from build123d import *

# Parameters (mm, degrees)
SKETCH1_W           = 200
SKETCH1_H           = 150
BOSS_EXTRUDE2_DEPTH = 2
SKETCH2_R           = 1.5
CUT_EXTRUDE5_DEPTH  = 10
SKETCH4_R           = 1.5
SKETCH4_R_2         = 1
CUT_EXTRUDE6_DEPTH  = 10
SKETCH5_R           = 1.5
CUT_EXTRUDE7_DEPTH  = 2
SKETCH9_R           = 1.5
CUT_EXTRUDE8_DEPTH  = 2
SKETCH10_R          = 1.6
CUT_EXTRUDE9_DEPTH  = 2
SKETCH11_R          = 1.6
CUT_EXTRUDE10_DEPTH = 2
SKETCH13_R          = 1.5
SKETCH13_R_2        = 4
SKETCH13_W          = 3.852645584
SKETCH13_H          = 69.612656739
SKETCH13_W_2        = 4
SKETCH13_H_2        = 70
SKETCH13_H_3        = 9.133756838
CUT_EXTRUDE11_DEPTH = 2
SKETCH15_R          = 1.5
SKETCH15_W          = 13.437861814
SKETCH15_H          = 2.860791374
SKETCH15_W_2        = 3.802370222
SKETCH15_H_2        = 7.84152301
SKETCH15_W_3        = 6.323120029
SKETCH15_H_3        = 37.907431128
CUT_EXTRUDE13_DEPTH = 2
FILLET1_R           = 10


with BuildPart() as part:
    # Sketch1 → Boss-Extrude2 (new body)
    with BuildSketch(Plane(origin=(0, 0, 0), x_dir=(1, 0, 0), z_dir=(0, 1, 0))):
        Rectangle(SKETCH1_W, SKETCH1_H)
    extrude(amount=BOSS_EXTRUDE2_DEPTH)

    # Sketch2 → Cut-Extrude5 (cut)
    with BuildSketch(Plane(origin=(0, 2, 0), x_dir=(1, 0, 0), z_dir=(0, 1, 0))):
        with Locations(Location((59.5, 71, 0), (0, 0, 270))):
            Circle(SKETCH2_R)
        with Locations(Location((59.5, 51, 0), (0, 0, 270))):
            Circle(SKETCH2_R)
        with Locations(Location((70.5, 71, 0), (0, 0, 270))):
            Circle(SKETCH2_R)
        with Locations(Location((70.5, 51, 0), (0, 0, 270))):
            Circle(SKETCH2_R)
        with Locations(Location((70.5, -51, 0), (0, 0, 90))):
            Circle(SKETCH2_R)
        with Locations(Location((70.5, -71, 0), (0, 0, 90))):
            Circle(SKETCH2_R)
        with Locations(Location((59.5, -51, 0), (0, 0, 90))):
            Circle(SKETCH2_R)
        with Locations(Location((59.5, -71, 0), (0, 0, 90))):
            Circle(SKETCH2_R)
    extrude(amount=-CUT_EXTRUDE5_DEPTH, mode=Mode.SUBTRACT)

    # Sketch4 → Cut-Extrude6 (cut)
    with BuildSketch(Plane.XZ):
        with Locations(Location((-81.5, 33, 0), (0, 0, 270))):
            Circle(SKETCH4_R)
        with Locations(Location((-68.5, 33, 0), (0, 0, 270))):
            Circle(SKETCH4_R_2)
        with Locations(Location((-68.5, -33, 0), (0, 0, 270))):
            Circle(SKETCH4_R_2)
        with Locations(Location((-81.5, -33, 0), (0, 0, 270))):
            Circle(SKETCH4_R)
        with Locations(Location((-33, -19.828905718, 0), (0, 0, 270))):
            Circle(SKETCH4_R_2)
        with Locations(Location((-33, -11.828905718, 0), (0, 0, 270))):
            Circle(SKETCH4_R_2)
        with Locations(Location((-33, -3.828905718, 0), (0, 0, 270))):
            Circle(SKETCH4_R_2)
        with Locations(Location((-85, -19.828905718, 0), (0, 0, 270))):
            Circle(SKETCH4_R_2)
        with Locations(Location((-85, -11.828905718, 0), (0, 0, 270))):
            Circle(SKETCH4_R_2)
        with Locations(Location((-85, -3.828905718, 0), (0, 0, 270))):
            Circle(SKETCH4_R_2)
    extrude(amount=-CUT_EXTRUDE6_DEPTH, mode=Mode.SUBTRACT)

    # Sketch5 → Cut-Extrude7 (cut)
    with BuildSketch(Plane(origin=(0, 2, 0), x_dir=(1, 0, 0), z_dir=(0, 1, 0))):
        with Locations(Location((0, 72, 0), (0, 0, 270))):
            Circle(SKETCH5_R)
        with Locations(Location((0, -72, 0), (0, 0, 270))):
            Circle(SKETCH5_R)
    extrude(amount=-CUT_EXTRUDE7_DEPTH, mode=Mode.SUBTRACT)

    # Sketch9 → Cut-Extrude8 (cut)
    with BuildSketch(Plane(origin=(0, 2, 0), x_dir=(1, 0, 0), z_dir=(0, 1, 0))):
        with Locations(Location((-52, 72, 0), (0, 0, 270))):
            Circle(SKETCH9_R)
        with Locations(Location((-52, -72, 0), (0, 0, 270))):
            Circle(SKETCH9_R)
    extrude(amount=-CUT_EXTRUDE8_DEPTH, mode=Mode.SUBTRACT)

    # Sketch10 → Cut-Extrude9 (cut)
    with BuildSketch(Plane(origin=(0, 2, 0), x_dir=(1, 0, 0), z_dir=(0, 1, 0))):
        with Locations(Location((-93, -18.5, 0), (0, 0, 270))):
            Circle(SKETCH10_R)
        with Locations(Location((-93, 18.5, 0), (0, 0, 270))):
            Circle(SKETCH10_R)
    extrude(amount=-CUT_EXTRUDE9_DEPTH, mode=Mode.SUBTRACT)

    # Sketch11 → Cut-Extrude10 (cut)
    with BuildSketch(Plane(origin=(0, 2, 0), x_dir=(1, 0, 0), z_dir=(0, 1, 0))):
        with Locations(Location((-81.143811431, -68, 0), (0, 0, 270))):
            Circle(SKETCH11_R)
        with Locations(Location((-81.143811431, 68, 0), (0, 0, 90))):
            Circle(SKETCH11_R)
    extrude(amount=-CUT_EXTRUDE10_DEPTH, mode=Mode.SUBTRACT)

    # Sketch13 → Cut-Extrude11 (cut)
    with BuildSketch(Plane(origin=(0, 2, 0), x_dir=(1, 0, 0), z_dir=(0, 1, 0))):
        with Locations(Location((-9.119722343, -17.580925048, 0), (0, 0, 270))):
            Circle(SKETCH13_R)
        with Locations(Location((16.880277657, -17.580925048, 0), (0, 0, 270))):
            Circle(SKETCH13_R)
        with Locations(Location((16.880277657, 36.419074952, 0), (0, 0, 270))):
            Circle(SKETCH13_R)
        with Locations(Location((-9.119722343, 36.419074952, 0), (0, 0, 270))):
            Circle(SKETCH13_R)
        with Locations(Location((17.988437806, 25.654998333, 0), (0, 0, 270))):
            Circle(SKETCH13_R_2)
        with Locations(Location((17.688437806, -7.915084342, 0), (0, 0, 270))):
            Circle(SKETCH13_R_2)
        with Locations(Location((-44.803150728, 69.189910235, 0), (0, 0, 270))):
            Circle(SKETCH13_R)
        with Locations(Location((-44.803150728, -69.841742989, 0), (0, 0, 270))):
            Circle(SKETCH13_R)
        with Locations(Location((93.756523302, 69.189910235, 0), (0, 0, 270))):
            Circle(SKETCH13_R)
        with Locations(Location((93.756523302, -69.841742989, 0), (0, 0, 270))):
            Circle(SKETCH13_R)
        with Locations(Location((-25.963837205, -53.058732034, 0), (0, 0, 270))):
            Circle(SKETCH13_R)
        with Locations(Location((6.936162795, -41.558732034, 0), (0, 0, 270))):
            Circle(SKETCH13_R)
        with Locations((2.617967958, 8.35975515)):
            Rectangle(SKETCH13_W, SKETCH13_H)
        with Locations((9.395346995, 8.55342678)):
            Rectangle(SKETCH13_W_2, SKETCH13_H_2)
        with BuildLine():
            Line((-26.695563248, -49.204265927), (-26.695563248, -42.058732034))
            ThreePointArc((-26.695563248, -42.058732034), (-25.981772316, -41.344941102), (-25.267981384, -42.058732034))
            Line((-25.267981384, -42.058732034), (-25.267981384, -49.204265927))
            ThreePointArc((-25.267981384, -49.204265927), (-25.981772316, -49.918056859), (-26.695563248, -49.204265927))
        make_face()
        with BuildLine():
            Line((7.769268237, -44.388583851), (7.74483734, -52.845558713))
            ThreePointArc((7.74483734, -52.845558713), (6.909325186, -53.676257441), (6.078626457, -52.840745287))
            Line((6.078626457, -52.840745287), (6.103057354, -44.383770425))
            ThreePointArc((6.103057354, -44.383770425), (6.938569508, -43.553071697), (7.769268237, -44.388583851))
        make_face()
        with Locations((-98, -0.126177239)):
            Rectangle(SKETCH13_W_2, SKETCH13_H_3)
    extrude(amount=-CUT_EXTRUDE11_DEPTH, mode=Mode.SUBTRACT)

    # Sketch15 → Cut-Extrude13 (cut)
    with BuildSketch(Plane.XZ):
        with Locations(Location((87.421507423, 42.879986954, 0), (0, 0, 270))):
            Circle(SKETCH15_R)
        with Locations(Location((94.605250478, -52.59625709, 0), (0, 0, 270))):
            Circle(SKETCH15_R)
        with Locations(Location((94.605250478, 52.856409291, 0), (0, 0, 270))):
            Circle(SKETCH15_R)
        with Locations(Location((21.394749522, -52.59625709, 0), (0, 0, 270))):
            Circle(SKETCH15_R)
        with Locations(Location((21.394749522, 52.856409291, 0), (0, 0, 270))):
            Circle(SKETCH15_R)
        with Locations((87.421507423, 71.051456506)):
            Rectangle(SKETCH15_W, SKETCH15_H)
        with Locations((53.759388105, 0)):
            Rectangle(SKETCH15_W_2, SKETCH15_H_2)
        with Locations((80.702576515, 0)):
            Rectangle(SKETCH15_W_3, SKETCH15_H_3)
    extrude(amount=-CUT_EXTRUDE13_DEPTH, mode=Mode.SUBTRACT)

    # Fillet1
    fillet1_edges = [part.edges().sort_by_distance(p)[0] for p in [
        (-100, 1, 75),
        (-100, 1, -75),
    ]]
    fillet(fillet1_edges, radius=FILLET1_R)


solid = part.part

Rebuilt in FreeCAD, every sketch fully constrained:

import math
import FreeCAD as App
import Part
import Sketcher

V = App.Vector
Q = App.Units.Quantity


def edges_at(feature, points):
    """Names of the edges that pass closest to the given points."""
    edges = feature.Shape.Edges
    near = lambda p: min(range(len(edges)), key=lambda i: edges[i].distToShape(Part.Vertex(*p))[0])
    return sorted({f"Edge{near(p) + 1}" for p in points})

doc = App.newDocument("Part")
body = doc.addObject("PartDesign::Body", "Body")

sketch1 = body.newObject("Sketcher::SketchObject", "Sketch")
sketch1.AttachmentSupport = (doc.getObject("XZ_Plane"), [""])
sketch1.MapMode = "FlatFace"
sketch1.addGeometry(Part.LineSegment(V(-100, -75, 0), V(-100, 75, 0)), False)
sketch1.addGeometry(Part.LineSegment(V(-100, 75, 0), V(100, 75, 0)), False)
sketch1.addGeometry(Part.LineSegment(V(100, 75, 0), V(100, -75, 0)), False)
sketch1.addGeometry(Part.LineSegment(V(100, -75, 0), V(-100, -75, 0)), False)
sketch1.addConstraint(Sketcher.Constraint("Coincident", 0, 2, 1, 1))
sketch1.addConstraint(Sketcher.Constraint("Coincident", 1, 2, 2, 1))
sketch1.addConstraint(Sketcher.Constraint("Coincident", 2, 2, 3, 1))
sketch1.addConstraint(Sketcher.Constraint("Coincident", 3, 2, 0, 1))
sketch1.addConstraint(Sketcher.Constraint("Vertical", 0))
sketch1.addConstraint(Sketcher.Constraint("Horizontal", 1))
sketch1.addConstraint(Sketcher.Constraint("Vertical", 2))
sketch1.addConstraint(Sketcher.Constraint("Horizontal", 3))
sketch1.addConstraint(Sketcher.Constraint("Symmetric", 0, 2, 2, 2, -1, 1))
sketch1.addConstraint(Sketcher.Constraint("DistanceX", 1, 1, 1, 2, Q("200 mm")))
sketch1.addConstraint(Sketcher.Constraint("DistanceY", 0, 1, 0, 2, Q("150 mm")))
pad1 = body.newObject("PartDesign::Pad", "Pad")
pad1.Profile = sketch1
pad1.Length = 2
pad1.Reversed = True

sketch2 = body.newObject("Sketcher::SketchObject", "Sketch001")
sketch2.AttachmentSupport = (doc.getObject("XZ_Plane"), [""])
sketch2.MapMode = "FlatFace"
sketch2.AttachmentOffset = App.Placement(V(0, 0, -2), App.Rotation())
sketch2.addGeometry(Part.Circle(V(59.5, -71, 0), V(0, 0, 1), 1.5), False)
sketch2.addGeometry(Part.Circle(V(59.5, -51, 0), V(0, 0, 1), 1.5), False)
sketch2.addGeometry(Part.Circle(V(70.5, -71, 0), V(0, 0, 1), 1.5), False)
sketch2.addGeometry(Part.Circle(V(70.5, -51, 0), V(0, 0, 1), 1.5), False)
sketch2.addGeometry(Part.Circle(V(70.5, 51, 0), V(0, 0, 1), 1.5), False)
sketch2.addGeometry(Part.Circle(V(70.5, 71, 0), V(0, 0, 1), 1.5), False)
sketch2.addGeometry(Part.Circle(V(59.5, 51, 0), V(0, 0, 1), 1.5), False)
sketch2.addGeometry(Part.Circle(V(59.5, 71, 0), V(0, 0, 1), 1.5), False)
sketch2.addConstraint(Sketcher.Constraint("Equal", 0, 1))
sketch2.addConstraint(Sketcher.Constraint("Equal", 1, 2))
sketch2.addConstraint(Sketcher.Constraint("Equal", 2, 3))
sketch2.addConstraint(Sketcher.Constraint("Equal", 3, 4))
sketch2.addConstraint(Sketcher.Constraint("Equal", 4, 5))
sketch2.addConstraint(Sketcher.Constraint("Equal", 5, 6))
sketch2.addConstraint(Sketcher.Constraint("Equal", 6, 7))
sketch2.addConstraint(Sketcher.Constraint("Symmetric", 3, 3, 4, 3, -1))
sketch2.addConstraint(Sketcher.Constraint("Symmetric", 2, 3, 5, 3, -1))
sketch2.addConstraint(Sketcher.Constraint("Symmetric", 1, 3, 6, 3, -1))
sketch2.addConstraint(Sketcher.Constraint("Symmetric", 0, 3, 7, 3, -1))
sketch2.addConstraint(Sketcher.Constraint("Horizontal", 0, 3, 2, 3))
sketch2.addConstraint(Sketcher.Constraint("Horizontal", 1, 3, 3, 3))
sketch2.addConstraint(Sketcher.Constraint("Vertical", 0, 3, 1, 3))
sketch2.addConstraint(Sketcher.Constraint("Vertical", 2, 3, 3, 3))
sketch2.addConstraint(Sketcher.Constraint("Diameter", 0, Q("3 mm")))
sketch2.addConstraint(Sketcher.Constraint("DistanceY", 0, 3, -1, 1, Q("71 mm")))
sketch2.addConstraint(Sketcher.Constraint("DistanceY", 1, 3, -1, 1, Q("51 mm")))
sketch2.addConstraint(Sketcher.Constraint("DistanceX", 0, 3, 2, 3, Q("11 mm")))
sketch2.addConstraint(Sketcher.Constraint("DistanceX", -1, 1, 0, 3, Q("59.5 mm")))
pocket1 = body.newObject("PartDesign::Pocket", "Pocket")
pocket1.Profile = sketch2
pocket1.Length = 10
pocket1.Reversed = True

sketch3 = body.newObject("Sketcher::SketchObject", "Sketch002")
sketch3.AttachmentSupport = (doc.getObject("XZ_Plane"), [""])
sketch3.MapMode = "FlatFace"
sketch3.addGeometry(Part.Circle(V(-81.5, 33, 0), V(0, 0, 1), 1.5), False)
sketch3.addGeometry(Part.Circle(V(-68.5, 33, 0), V(0, 0, 1), 1), False)
sketch3.addGeometry(Part.Circle(V(-68.5, -33, 0), V(0, 0, 1), 1), False)
sketch3.addGeometry(Part.Circle(V(-81.5, -33, 0), V(0, 0, 1), 1.5), False)
sketch3.addGeometry(Part.Circle(V(-33, -19.828906, 0), V(0, 0, 1), 1), False)
sketch3.addGeometry(Part.Circle(V(-33, -11.828906, 0), V(0, 0, 1), 1), False)
sketch3.addGeometry(Part.Circle(V(-33, -3.828906, 0), V(0, 0, 1), 1), False)
sketch3.addGeometry(Part.Circle(V(-85, -19.828906, 0), V(0, 0, 1), 1), False)
sketch3.addGeometry(Part.Circle(V(-85, -11.828906, 0), V(0, 0, 1), 1), False)
sketch3.addGeometry(Part.Circle(V(-85, -3.828906, 0), V(0, 0, 1), 1), False)
sketch3.addConstraint(Sketcher.Constraint("Equal", 1, 2))
sketch3.addConstraint(Sketcher.Constraint("Equal", 0, 3))
sketch3.addConstraint(Sketcher.Constraint("Equal", 2, 4))
sketch3.addConstraint(Sketcher.Constraint("Equal", 4, 5))
sketch3.addConstraint(Sketcher.Constraint("Equal", 5, 6))
sketch3.addConstraint(Sketcher.Constraint("Equal", 6, 7))
sketch3.addConstraint(Sketcher.Constraint("Equal", 7, 8))
sketch3.addConstraint(Sketcher.Constraint("Equal", 8, 9))
sketch3.addConstraint(Sketcher.Constraint("Symmetric", 1, 3, 2, 3, -1))
sketch3.addConstraint(Sketcher.Constraint("Symmetric", 0, 3, 3, 3, -1))
sketch3.addConstraint(Sketcher.Constraint("Horizontal", 0, 3, 1, 3))
sketch3.addConstraint(Sketcher.Constraint("Horizontal", 4, 3, 7, 3))
sketch3.addConstraint(Sketcher.Constraint("Horizontal", 5, 3, 8, 3))
sketch3.addConstraint(Sketcher.Constraint("Horizontal", 6, 3, 9, 3))
sketch3.addConstraint(Sketcher.Constraint("Vertical", 4, 3, 5, 3))
sketch3.addConstraint(Sketcher.Constraint("Vertical", 5, 3, 6, 3))
sketch3.addConstraint(Sketcher.Constraint("Vertical", 7, 3, 8, 3))
sketch3.addConstraint(Sketcher.Constraint("Vertical", 8, 3, 9, 3))
sketch3.addConstraint(Sketcher.Constraint("Diameter", 0, Q("3 mm")))
sketch3.addConstraint(Sketcher.Constraint("Diameter", 1, Q("2 mm")))
sketch3.addConstraint(Sketcher.Constraint("DistanceY", -1, 1, 0, 3, Q("33 mm")))
sketch3.addConstraint(Sketcher.Constraint("DistanceX", 4, 3, -1, 1, Q("33 mm")))
sketch3.addConstraint(Sketcher.Constraint("DistanceX", 7, 3, -1, 1, Q("85 mm")))
sketch3.addConstraint(Sketcher.Constraint("DistanceX", 0, 3, 1, 3, Q("13 mm")))
sketch3.addConstraint(Sketcher.Constraint("DistanceY", 4, 3, 5, 3, Q("8 mm")))
sketch3.addConstraint(Sketcher.Constraint("DistanceY", 5, 3, 6, 3, Q("8 mm")))
sketch3.addConstraint(Sketcher.Constraint("DistanceX", 0, 3, -1, 1, Q("81.5 mm")))
sketch3.addConstraint(Sketcher.Constraint("DistanceY", 4, 3, -1, 1, Q("19.828906 mm")))
pocket2 = body.newObject("PartDesign::Pocket", "Pocket001")
pocket2.Profile = sketch3
pocket2.Length = 10

sketch4 = body.newObject("Sketcher::SketchObject", "Sketch003")
sketch4.AttachmentSupport = (doc.getObject("XZ_Plane"), [""])
sketch4.MapMode = "FlatFace"
sketch4.AttachmentOffset = App.Placement(V(0, 0, -2), App.Rotation())
sketch4.addGeometry(Part.Circle(V(0, -72, 0), V(0, 0, 1), 1.5), False)
sketch4.addGeometry(Part.Circle(V(0, 72, 0), V(0, 0, 1), 1.5), False)
sketch4.addConstraint(Sketcher.Constraint("Equal", 0, 1))
sketch4.addConstraint(Sketcher.Constraint("Symmetric", 0, 3, 1, 3, -1, 1))
sketch4.addConstraint(Sketcher.Constraint("PointOnObject", 0, 3, -2))
sketch4.addConstraint(Sketcher.Constraint("Diameter", 0, Q("3 mm")))
sketch4.addConstraint(Sketcher.Constraint("DistanceY", 0, 3, -1, 1, Q("72 mm")))
pocket3 = body.newObject("PartDesign::Pocket", "Pocket002")
pocket3.Profile = sketch4
pocket3.Length = 2
pocket3.Reversed = True

sketch5 = body.newObject("Sketcher::SketchObject", "Sketch004")
sketch5.AttachmentSupport = (doc.getObject("XZ_Plane"), [""])
sketch5.MapMode = "FlatFace"
sketch5.AttachmentOffset = App.Placement(V(0, 0, -2), App.Rotation())
sketch5.addGeometry(Part.Circle(V(-52, -72, 0), V(0, 0, 1), 1.5), False)
sketch5.addGeometry(Part.Circle(V(-52, 72, 0), V(0, 0, 1), 1.5), False)
sketch5.addConstraint(Sketcher.Constraint("Equal", 0, 1))
sketch5.addConstraint(Sketcher.Constraint("Symmetric", 0, 3, 1, 3, -1))
sketch5.addConstraint(Sketcher.Constraint("Diameter", 0, Q("3 mm")))
sketch5.addConstraint(Sketcher.Constraint("DistanceX", 0, 3, -1, 1, Q("52 mm")))
sketch5.addConstraint(Sketcher.Constraint("DistanceY", 0, 3, -1, 1, Q("72 mm")))
pocket4 = body.newObject("PartDesign::Pocket", "Pocket003")
pocket4.Profile = sketch5
pocket4.Length = 2
pocket4.Reversed = True

sketch6 = body.newObject("Sketcher::SketchObject", "Sketch005")
sketch6.AttachmentSupport = (doc.getObject("XZ_Plane"), [""])
sketch6.MapMode = "FlatFace"
sketch6.AttachmentOffset = App.Placement(V(0, 0, -2), App.Rotation())
sketch6.addGeometry(Part.Circle(V(-93, 18.5, 0), V(0, 0, 1), 1.6), False)
sketch6.addGeometry(Part.Circle(V(-93, -18.5, 0), V(0, 0, 1), 1.6), False)
sketch6.addConstraint(Sketcher.Constraint("Equal", 0, 1))
sketch6.addConstraint(Sketcher.Constraint("Symmetric", 0, 3, 1, 3, -1))
sketch6.addConstraint(Sketcher.Constraint("Diameter", 0, Q("3.2 mm")))
sketch6.addConstraint(Sketcher.Constraint("DistanceX", 0, 3, -1, 1, Q("93 mm")))
sketch6.addConstraint(Sketcher.Constraint("DistanceY", 1, 3, 0, 3, Q("37 mm")))
pocket5 = body.newObject("PartDesign::Pocket", "Pocket004")
pocket5.Profile = sketch6
pocket5.Length = 2
pocket5.Reversed = True

sketch7 = body.newObject("Sketcher::SketchObject", "Sketch006")
sketch7.AttachmentSupport = (doc.getObject("XZ_Plane"), [""])
sketch7.MapMode = "FlatFace"
sketch7.AttachmentOffset = App.Placement(V(0, 0, -2), App.Rotation())
sketch7.addGeometry(Part.Circle(V(-81.143811, 68, 0), V(0, 0, 1), 1.6), False)
sketch7.addGeometry(Part.Circle(V(-81.143811, -68, 0), V(0, 0, 1), 1.6), False)
sketch7.addConstraint(Sketcher.Constraint("Equal", 0, 1))
sketch7.addConstraint(Sketcher.Constraint("Symmetric", 0, 3, 1, 3, -1))
sketch7.addConstraint(Sketcher.Constraint("Diameter", 0, Q("3.2 mm")))
sketch7.addConstraint(Sketcher.Constraint("DistanceY", -1, 1, 0, 3, Q("68 mm")))
sketch7.addConstraint(Sketcher.Constraint("DistanceX", 0, 3, -1, 1, Q("81.143811 mm")))
pocket6 = body.newObject("PartDesign::Pocket", "Pocket005")
pocket6.Profile = sketch7
pocket6.Length = 2
pocket6.Reversed = True

sketch8 = body.newObject("Sketcher::SketchObject", "Sketch007")
sketch8.AttachmentSupport = (doc.getObject("XZ_Plane"), [""])
sketch8.MapMode = "FlatFace"
sketch8.AttachmentOffset = App.Placement(V(0, 0, -2), App.Rotation())
sketch8.addGeometry(Part.Circle(V(-9.119722, 17.580925, 0), V(0, 0, 1), 1.5), False)
sketch8.addGeometry(Part.Circle(V(16.880278, 17.580925, 0), V(0, 0, 1), 1.5), False)
sketch8.addGeometry(Part.Circle(V(16.880278, -36.419075, 0), V(0, 0, 1), 1.5), False)
sketch8.addGeometry(Part.Circle(V(-9.119722, -36.419075, 0), V(0, 0, 1), 1.5), False)
sketch8.addGeometry(Part.Circle(V(17.988438, -25.654998, 0), V(0, 0, 1), 4), False)
sketch8.addGeometry(Part.Circle(V(17.688438, 7.915084, 0), V(0, 0, 1), 4), False)
sketch8.addGeometry(Part.Circle(V(-44.803151, -69.18991, 0), V(0, 0, 1), 1.5), False)
sketch8.addGeometry(Part.Circle(V(-44.803151, 69.841743, 0), V(0, 0, 1), 1.5), False)
sketch8.addGeometry(Part.Circle(V(93.756523, -69.18991, 0), V(0, 0, 1), 1.5), False)
sketch8.addGeometry(Part.Circle(V(93.756523, 69.841743, 0), V(0, 0, 1), 1.5), False)
sketch8.addGeometry(Part.Circle(V(-25.963837, 53.058732, 0), V(0, 0, 1), 1.5), False)
sketch8.addGeometry(Part.Circle(V(6.936163, 41.558732, 0), V(0, 0, 1), 1.5), False)
sketch8.addGeometry(Part.LineSegment(V(0.691645, -43.166084, 0), V(0.691645, 26.446573, 0)), False)
sketch8.addGeometry(Part.LineSegment(V(0.691645, 26.446573, 0), V(4.544291, 26.446573, 0)), False)
sketch8.addGeometry(Part.LineSegment(V(4.544291, 26.446573, 0), V(4.544291, -43.166084, 0)), False)
sketch8.addGeometry(Part.LineSegment(V(4.544291, -43.166084, 0), V(0.691645, -43.166084, 0)), False)
sketch8.addGeometry(Part.LineSegment(V(7.395347, -43.553427, 0), V(7.395347, 26.446573, 0)), False)
sketch8.addGeometry(Part.LineSegment(V(7.395347, 26.446573, 0), V(11.395347, 26.446573, 0)), False)
sketch8.addGeometry(Part.LineSegment(V(11.395347, 26.446573, 0), V(11.395347, -43.553427, 0)), False)
sketch8.addGeometry(Part.LineSegment(V(11.395347, -43.553427, 0), V(7.395347, -43.553427, 0)), False)
sketch8.addGeometry(Part.LineSegment(V(-26.695563, 42.058732, 0), V(-26.695563, 49.204266, 0)), False)
sketch8.addGeometry(Part.ArcOfCircle(Part.Circle(V(-25.981772, 49.204266, 0), V(0, 0, 1), 0.713791), math.radians(0), math.radians(180)), False)
sketch8.addGeometry(Part.LineSegment(V(-25.267981, 49.204266, 0), V(-25.267981, 42.058732, 0)), False)
sketch8.addGeometry(Part.ArcOfCircle(Part.Circle(V(-25.981772, 42.058732, 0), V(0, 0, 1), 0.713791), math.radians(180), math.radians(360)), False)
sketch8.addGeometry(Part.LineSegment(V(7.744837, 52.845559, 0), V(7.769268, 44.388584, 0)), False)
sketch8.addGeometry(Part.ArcOfCircle(Part.Circle(V(6.936163, 44.386177, 0), V(0, 0, 1), 0.833109), math.radians(-179.834482), math.radians(0.165518)), False)
sketch8.addGeometry(Part.LineSegment(V(6.103057, 44.38377, 0), V(6.078626, 52.840745, 0)), False)
sketch8.addGeometry(Part.ArcOfCircle(Part.Circle(V(6.911732, 52.843152, 0), V(0, 0, 1), 0.833109), math.radians(0.165518), math.radians(180.165518)), False)
sketch8.addGeometry(Part.LineSegment(V(-100, -4.440701, 0), V(-100, 4.693056, 0)), False)
sketch8.addGeometry(Part.LineSegment(V(-100, 4.693056, 0), V(-96, 4.693056, 0)), False)
sketch8.addGeometry(Part.LineSegment(V(-96, 4.693056, 0), V(-96, -4.440701, 0)), False)
sketch8.addGeometry(Part.LineSegment(V(-96, -4.440701, 0), V(-100, -4.440701, 0)), False)
sketch8.addConstraint(Sketcher.Constraint("Coincident", 12, 2, 13, 1))
sketch8.addConstraint(Sketcher.Constraint("Coincident", 13, 2, 14, 1))
sketch8.addConstraint(Sketcher.Constraint("Coincident", 14, 2, 15, 1))
sketch8.addConstraint(Sketcher.Constraint("Coincident", 15, 2, 12, 1))
sketch8.addConstraint(Sketcher.Constraint("Coincident", 16, 2, 17, 1))
sketch8.addConstraint(Sketcher.Constraint("Coincident", 17, 2, 18, 1))
sketch8.addConstraint(Sketcher.Constraint("Coincident", 18, 2, 19, 1))
sketch8.addConstraint(Sketcher.Constraint("Coincident", 19, 2, 16, 1))
sketch8.addConstraint(Sketcher.Constraint("Tangent", 20, 2, 21, 2))
sketch8.addConstraint(Sketcher.Constraint("Tangent", 21, 1, 22, 1))
sketch8.addConstraint(Sketcher.Constraint("Tangent", 22, 2, 23, 2))
sketch8.addConstraint(Sketcher.Constraint("Tangent", 23, 1, 20, 1))
sketch8.addConstraint(Sketcher.Constraint("Tangent", 24, 2, 25, 2))
sketch8.addConstraint(Sketcher.Constraint("Tangent", 25, 1, 26, 1))
sketch8.addConstraint(Sketcher.Constraint("Tangent", 26, 2, 27, 2))
sketch8.addConstraint(Sketcher.Constraint("Tangent", 27, 1, 24, 1))
sketch8.addConstraint(Sketcher.Constraint("Coincident", 28, 2, 29, 1))
sketch8.addConstraint(Sketcher.Constraint("Coincident", 29, 2, 30, 1))
sketch8.addConstraint(Sketcher.Constraint("Coincident", 30, 2, 31, 1))
sketch8.addConstraint(Sketcher.Constraint("Coincident", 31, 2, 28, 1))
sketch8.addConstraint(Sketcher.Constraint("Vertical", 12))
sketch8.addConstraint(Sketcher.Constraint("Horizontal", 13))
sketch8.addConstraint(Sketcher.Constraint("Vertical", 14))
sketch8.addConstraint(Sketcher.Constraint("Horizontal", 15))
sketch8.addConstraint(Sketcher.Constraint("Vertical", 16))
sketch8.addConstraint(Sketcher.Constraint("Horizontal", 17))
sketch8.addConstraint(Sketcher.Constraint("Vertical", 18))
sketch8.addConstraint(Sketcher.Constraint("Horizontal", 19))
sketch8.addConstraint(Sketcher.Constraint("Vertical", 20))
sketch8.addConstraint(Sketcher.Constraint("Vertical", 22))
sketch8.addConstraint(Sketcher.Constraint("Vertical", 28))
sketch8.addConstraint(Sketcher.Constraint("Horizontal", 29))
sketch8.addConstraint(Sketcher.Constraint("Vertical", 30))
sketch8.addConstraint(Sketcher.Constraint("Horizontal", 31))
sketch8.addConstraint(Sketcher.Constraint("Equal", 0, 1))
sketch8.addConstraint(Sketcher.Constraint("Equal", 1, 2))
sketch8.addConstraint(Sketcher.Constraint("Equal", 2, 3))
sketch8.addConstraint(Sketcher.Constraint("Equal", 4, 5))
sketch8.addConstraint(Sketcher.Constraint("Equal", 3, 6))
sketch8.addConstraint(Sketcher.Constraint("Equal", 6, 7))
sketch8.addConstraint(Sketcher.Constraint("Equal", 7, 8))
sketch8.addConstraint(Sketcher.Constraint("Equal", 8, 9))
sketch8.addConstraint(Sketcher.Constraint("Equal", 9, 10))
sketch8.addConstraint(Sketcher.Constraint("Equal", 10, 11))
sketch8.addConstraint(Sketcher.Constraint("Equal", 25, 27))
sketch8.addConstraint(Sketcher.Constraint("Horizontal", 0, 3, 1, 3))
sketch8.addConstraint(Sketcher.Constraint("Horizontal", 2, 3, 3, 3))
sketch8.addConstraint(Sketcher.Constraint("Horizontal", 6, 3, 8, 3))
sketch8.addConstraint(Sketcher.Constraint("Horizontal", 7, 3, 9, 3))
sketch8.addConstraint(Sketcher.Constraint("Horizontal", 13, 2, 16, 2))
sketch8.addConstraint(Sketcher.Constraint("Vertical", 1, 3, 2, 3))
sketch8.addConstraint(Sketcher.Constraint("Vertical", 0, 3, 3, 3))
sketch8.addConstraint(Sketcher.Constraint("Vertical", 6, 3, 7, 3))
sketch8.addConstraint(Sketcher.Constraint("Vertical", 8, 3, 9, 3))
sketch8.addConstraint(Sketcher.Constraint("Vertical", 11, 3, 25, 3))
sketch8.addConstraint(Sketcher.Constraint("Equal", 19, 29))
sketch8.addConstraint(Sketcher.Constraint("Diameter", 0, Q("3 mm")))
sketch8.addConstraint(Sketcher.Constraint("Diameter", 4, Q("8 mm")))
sketch8.addConstraint(Sketcher.Constraint("DistanceX", 17, 1, 17, 2, Q("4 mm")))
sketch8.addConstraint(Sketcher.Constraint("DistanceY", 16, 1, 16, 2, Q("70 mm")))
sketch8.addConstraint(Sketcher.Constraint("DistanceX", 28, 2, -1, 1, Q("100 mm")))
sketch8.addConstraint(Sketcher.Constraint("DistanceX", 0, 3, 1, 3, Q("26 mm")))
sketch8.addConstraint(Sketcher.Constraint("DistanceY", 2, 3, 1, 3, Q("54 mm")))
sketch8.addConstraint(Sketcher.Constraint("DistanceY", 23, 3, 10, 3, Q("11 mm")))
sketch8.addConstraint(Sketcher.Constraint("DistanceX", 5, 3, 4, 3, Q("0.3 mm")))
sketch8.addConstraint(Sketcher.Constraint("DistanceX", 10, 3, 11, 3, Q("32.9 mm")))
sketch8.addConstraint(Sketcher.Constraint("DistanceY", 11, 3, 10, 3, Q("11.5 mm")))
sketch8.addConstraint(Sketcher.Constraint("Radius", 21, Q("0.713791 mm")))
sketch8.addConstraint(Sketcher.Constraint("Radius", 25, Q("0.833109 mm")))
sketch8.addConstraint(Sketcher.Constraint("DistanceY", 4, 3, -1, 1, Q("25.654998 mm")))
sketch8.addConstraint(Sketcher.Constraint("DistanceY", 30, 2, -1, 1, Q("4.440701 mm")))
sketch8.addConstraint(Sketcher.Constraint("DistanceX", 12, 2, 16, 2, Q("6.703702 mm")))
sketch8.addConstraint(Sketcher.Constraint("Distance", 24, Q("8.45701 mm")))
sketch8.addConstraint(Sketcher.Constraint("DistanceX", 13, 1, 13, 2, Q("3.852646 mm")))
sketch8.addConstraint(Sketcher.Constraint("DistanceY", 12, 1, 12, 2, Q("69.612657 mm")))
sketch8.addConstraint(Sketcher.Constraint("DistanceY", 20, 1, 20, 2, Q("7.145534 mm")))
sketch8.addConstraint(Sketcher.Constraint("DistanceY", 28, 1, 28, 2, Q("9.133757 mm")))
sketch8.addConstraint(Sketcher.Constraint("DistanceX", 6, 3, -1, 1, Q("44.803151 mm")))
sketch8.addConstraint(Sketcher.Constraint("DistanceY", 6, 3, -1, 1, Q("69.18991 mm")))
sketch8.addConstraint(Sketcher.Constraint("DistanceX", -1, 1, 27, 3, Q("6.911732 mm")))
sketch8.addConstraint(Sketcher.Constraint("DistanceY", -1, 1, 27, 3, Q("52.843152 mm")))
sketch8.addConstraint(Sketcher.Constraint("DistanceX", -1, 1, 13, 2, Q("4.544291 mm")))
sketch8.addConstraint(Sketcher.Constraint("DistanceX", 21, 1, -1, 1, Q("25.267981 mm")))
sketch8.addConstraint(Sketcher.Constraint("DistanceX", -1, 1, 24, 2, Q("7.769268 mm")))
sketch8.addConstraint(Sketcher.Constraint("DistanceX", 2, 3, 4, 3, Q("1.10816 mm")))
sketch8.addConstraint(Sketcher.Constraint("DistanceY", 5, 3, 1, 3, Q("9.665841 mm")))
sketch8.addConstraint(Sketcher.Constraint("DistanceX", 6, 3, 3, 3, Q("35.683428 mm")))
sketch8.addConstraint(Sketcher.Constraint("DistanceY", 5, 3, 7, 3, Q("61.926659 mm")))
sketch8.addConstraint(Sketcher.Constraint("DistanceY", 4, 3, 7, 3, Q("95.496741 mm")))
sketch8.addConstraint(Sketcher.Constraint("DistanceY", 10, 3, 7, 3, Q("16.783011 mm")))
sketch8.addConstraint(Sketcher.Constraint("DistanceY", 0, 3, 12, 2, Q("8.865648 mm")))
sketch8.addConstraint(Sketcher.Constraint("DistanceX", -1, 1, 8, 3, Q("93.756523 mm")))
pocket7 = body.newObject("PartDesign::Pocket", "Pocket006")
pocket7.Profile = sketch8
pocket7.Length = 2
pocket7.Reversed = True

sketch9 = body.newObject("Sketcher::SketchObject", "Sketch008")
sketch9.AttachmentSupport = (doc.getObject("XZ_Plane"), [""])
sketch9.MapMode = "FlatFace"
sketch9.addGeometry(Part.Circle(V(87.421507, 42.879987, 0), V(0, 0, 1), 1.5), False)
sketch9.addGeometry(Part.Circle(V(94.60525, -52.596257, 0), V(0, 0, 1), 1.5), False)
sketch9.addGeometry(Part.Circle(V(94.60525, 52.856409, 0), V(0, 0, 1), 1.5), False)
sketch9.addGeometry(Part.Circle(V(21.39475, -52.596257, 0), V(0, 0, 1), 1.5), False)
sketch9.addGeometry(Part.Circle(V(21.39475, 52.856409, 0), V(0, 0, 1), 1.5), False)
sketch9.addGeometry(Part.LineSegment(V(80.702577, 72.481852, 0), V(80.702577, 69.621061, 0)), False)
sketch9.addGeometry(Part.LineSegment(V(80.702577, 69.621061, 0), V(94.140438, 69.621061, 0)), False)
sketch9.addGeometry(Part.LineSegment(V(94.140438, 69.621061, 0), V(94.140438, 72.481852, 0)), False)
sketch9.addGeometry(Part.LineSegment(V(94.140438, 72.481852, 0), V(80.702577, 72.481852, 0)), False)
sketch9.addGeometry(Part.LineSegment(V(51.858203, 3.920762, 0), V(51.858203, -3.920762, 0)), False)
sketch9.addGeometry(Part.LineSegment(V(51.858203, -3.920762, 0), V(55.660573, -3.920762, 0)), False)
sketch9.addGeometry(Part.LineSegment(V(55.660573, -3.920762, 0), V(55.660573, 3.920762, 0)), False)
sketch9.addGeometry(Part.LineSegment(V(55.660573, 3.920762, 0), V(51.858203, 3.920762, 0)), False)
sketch9.addGeometry(Part.LineSegment(V(77.541017, 18.953716, 0), V(77.541017, -18.953716, 0)), False)
sketch9.addGeometry(Part.LineSegment(V(77.541017, -18.953716, 0), V(83.864137, -18.953716, 0)), False)
sketch9.addGeometry(Part.LineSegment(V(83.864137, -18.953716, 0), V(83.864137, 18.953716, 0)), False)
sketch9.addGeometry(Part.LineSegment(V(83.864137, 18.953716, 0), V(77.541017, 18.953716, 0)), False)
sketch9.addConstraint(Sketcher.Constraint("Coincident", 5, 2, 6, 1))
sketch9.addConstraint(Sketcher.Constraint("Coincident", 6, 2, 7, 1))
sketch9.addConstraint(Sketcher.Constraint("Coincident", 7, 2, 8, 1))
sketch9.addConstraint(Sketcher.Constraint("Coincident", 8, 2, 5, 1))
sketch9.addConstraint(Sketcher.Constraint("Coincident", 9, 2, 10, 1))
sketch9.addConstraint(Sketcher.Constraint("Coincident", 10, 2, 11, 1))
sketch9.addConstraint(Sketcher.Constraint("Coincident", 11, 2, 12, 1))
sketch9.addConstraint(Sketcher.Constraint("Coincident", 12, 2, 9, 1))
sketch9.addConstraint(Sketcher.Constraint("Coincident", 13, 2, 14, 1))
sketch9.addConstraint(Sketcher.Constraint("Coincident", 14, 2, 15, 1))
sketch9.addConstraint(Sketcher.Constraint("Coincident", 15, 2, 16, 1))
sketch9.addConstraint(Sketcher.Constraint("Coincident", 16, 2, 13, 1))
sketch9.addConstraint(Sketcher.Constraint("Vertical", 5))
sketch9.addConstraint(Sketcher.Constraint("Horizontal", 6))
sketch9.addConstraint(Sketcher.Constraint("Vertical", 7))
sketch9.addConstraint(Sketcher.Constraint("Horizontal", 8))
sketch9.addConstraint(Sketcher.Constraint("Vertical", 9))
sketch9.addConstraint(Sketcher.Constraint("Horizontal", 10))
sketch9.addConstraint(Sketcher.Constraint("Vertical", 11))
sketch9.addConstraint(Sketcher.Constraint("Horizontal", 12))
sketch9.addConstraint(Sketcher.Constraint("Vertical", 13))
sketch9.addConstraint(Sketcher.Constraint("Horizontal", 14))
sketch9.addConstraint(Sketcher.Constraint("Vertical", 15))
sketch9.addConstraint(Sketcher.Constraint("Horizontal", 16))
sketch9.addConstraint(Sketcher.Constraint("Equal", 0, 1))
sketch9.addConstraint(Sketcher.Constraint("Equal", 1, 2))
sketch9.addConstraint(Sketcher.Constraint("Equal", 2, 3))
sketch9.addConstraint(Sketcher.Constraint("Equal", 3, 4))
sketch9.addConstraint(Sketcher.Constraint("Horizontal", 1, 3, 3, 3))
sketch9.addConstraint(Sketcher.Constraint("Horizontal", 2, 3, 4, 3))
sketch9.addConstraint(Sketcher.Constraint("Vertical", 1, 3, 2, 3))
sketch9.addConstraint(Sketcher.Constraint("Vertical", 3, 3, 4, 3))
sketch9.addConstraint(Sketcher.Constraint("Diameter", 0, Q("3 mm")))
sketch9.addConstraint(Sketcher.Constraint("DistanceX", 6, 1, 6, 2, Q("13.437862 mm")))
sketch9.addConstraint(Sketcher.Constraint("DistanceX", 10, 1, 10, 2, Q("3.80237 mm")))
sketch9.addConstraint(Sketcher.Constraint("DistanceX", 14, 1, 14, 2, Q("6.32312 mm")))
sketch9.addConstraint(Sketcher.Constraint("DistanceY", 5, 2, 5, 1, Q("2.860791 mm")))
sketch9.addConstraint(Sketcher.Constraint("DistanceY", 13, 2, 13, 1, Q("37.907431 mm")))
sketch9.addConstraint(Sketcher.Constraint("DistanceX", 3, 3, 1, 3, Q("73.210501 mm")))
sketch9.addConstraint(Sketcher.Constraint("DistanceY", 9, 2, 9, 1, Q("7.841523 mm")))
sketch9.addConstraint(Sketcher.Constraint("DistanceX", -1, 1, 1, 3, Q("94.60525 mm")))
sketch9.addConstraint(Sketcher.Constraint("DistanceY", -1, 1, 2, 3, Q("52.856409 mm")))
sketch9.addConstraint(Sketcher.Constraint("DistanceY", -1, 1, 5, 2, Q("69.621061 mm")))
sketch9.addConstraint(Sketcher.Constraint("DistanceX", -1, 1, 6, 2, Q("94.140438 mm")))
sketch9.addConstraint(Sketcher.Constraint("DistanceY", 9, 2, -1, 1, Q("3.920762 mm")))
sketch9.addConstraint(Sketcher.Constraint("DistanceX", 5, 2, 0, 3, Q("6.718931 mm")))
sketch9.addConstraint(Sketcher.Constraint("DistanceY", 9, 2, 0, 3, Q("46.800748 mm")))
sketch9.addConstraint(Sketcher.Constraint("DistanceY", 1, 3, 13, 2, Q("33.642542 mm")))
sketch9.addConstraint(Sketcher.Constraint("DistanceX", 15, 2, 0, 3, Q("3.557371 mm")))
sketch9.addConstraint(Sketcher.Constraint("DistanceY", 15, 2, 0, 3, Q("23.926271 mm")))
sketch9.addConstraint(Sketcher.Constraint("DistanceX", -1, 1, 9, 2, Q("51.858203 mm")))
pocket8 = body.newObject("PartDesign::Pocket", "Pocket007")
pocket8.Profile = sketch9
pocket8.Length = 2
doc.recompute()

fillet = body.newObject("PartDesign::Fillet", "Fillet")
fillet.Base = (pocket8, edges_at(pocket8, [(-100, 1, 75), (-100, 1, -75)]))
fillet.Radius = 10

doc.recompute()
